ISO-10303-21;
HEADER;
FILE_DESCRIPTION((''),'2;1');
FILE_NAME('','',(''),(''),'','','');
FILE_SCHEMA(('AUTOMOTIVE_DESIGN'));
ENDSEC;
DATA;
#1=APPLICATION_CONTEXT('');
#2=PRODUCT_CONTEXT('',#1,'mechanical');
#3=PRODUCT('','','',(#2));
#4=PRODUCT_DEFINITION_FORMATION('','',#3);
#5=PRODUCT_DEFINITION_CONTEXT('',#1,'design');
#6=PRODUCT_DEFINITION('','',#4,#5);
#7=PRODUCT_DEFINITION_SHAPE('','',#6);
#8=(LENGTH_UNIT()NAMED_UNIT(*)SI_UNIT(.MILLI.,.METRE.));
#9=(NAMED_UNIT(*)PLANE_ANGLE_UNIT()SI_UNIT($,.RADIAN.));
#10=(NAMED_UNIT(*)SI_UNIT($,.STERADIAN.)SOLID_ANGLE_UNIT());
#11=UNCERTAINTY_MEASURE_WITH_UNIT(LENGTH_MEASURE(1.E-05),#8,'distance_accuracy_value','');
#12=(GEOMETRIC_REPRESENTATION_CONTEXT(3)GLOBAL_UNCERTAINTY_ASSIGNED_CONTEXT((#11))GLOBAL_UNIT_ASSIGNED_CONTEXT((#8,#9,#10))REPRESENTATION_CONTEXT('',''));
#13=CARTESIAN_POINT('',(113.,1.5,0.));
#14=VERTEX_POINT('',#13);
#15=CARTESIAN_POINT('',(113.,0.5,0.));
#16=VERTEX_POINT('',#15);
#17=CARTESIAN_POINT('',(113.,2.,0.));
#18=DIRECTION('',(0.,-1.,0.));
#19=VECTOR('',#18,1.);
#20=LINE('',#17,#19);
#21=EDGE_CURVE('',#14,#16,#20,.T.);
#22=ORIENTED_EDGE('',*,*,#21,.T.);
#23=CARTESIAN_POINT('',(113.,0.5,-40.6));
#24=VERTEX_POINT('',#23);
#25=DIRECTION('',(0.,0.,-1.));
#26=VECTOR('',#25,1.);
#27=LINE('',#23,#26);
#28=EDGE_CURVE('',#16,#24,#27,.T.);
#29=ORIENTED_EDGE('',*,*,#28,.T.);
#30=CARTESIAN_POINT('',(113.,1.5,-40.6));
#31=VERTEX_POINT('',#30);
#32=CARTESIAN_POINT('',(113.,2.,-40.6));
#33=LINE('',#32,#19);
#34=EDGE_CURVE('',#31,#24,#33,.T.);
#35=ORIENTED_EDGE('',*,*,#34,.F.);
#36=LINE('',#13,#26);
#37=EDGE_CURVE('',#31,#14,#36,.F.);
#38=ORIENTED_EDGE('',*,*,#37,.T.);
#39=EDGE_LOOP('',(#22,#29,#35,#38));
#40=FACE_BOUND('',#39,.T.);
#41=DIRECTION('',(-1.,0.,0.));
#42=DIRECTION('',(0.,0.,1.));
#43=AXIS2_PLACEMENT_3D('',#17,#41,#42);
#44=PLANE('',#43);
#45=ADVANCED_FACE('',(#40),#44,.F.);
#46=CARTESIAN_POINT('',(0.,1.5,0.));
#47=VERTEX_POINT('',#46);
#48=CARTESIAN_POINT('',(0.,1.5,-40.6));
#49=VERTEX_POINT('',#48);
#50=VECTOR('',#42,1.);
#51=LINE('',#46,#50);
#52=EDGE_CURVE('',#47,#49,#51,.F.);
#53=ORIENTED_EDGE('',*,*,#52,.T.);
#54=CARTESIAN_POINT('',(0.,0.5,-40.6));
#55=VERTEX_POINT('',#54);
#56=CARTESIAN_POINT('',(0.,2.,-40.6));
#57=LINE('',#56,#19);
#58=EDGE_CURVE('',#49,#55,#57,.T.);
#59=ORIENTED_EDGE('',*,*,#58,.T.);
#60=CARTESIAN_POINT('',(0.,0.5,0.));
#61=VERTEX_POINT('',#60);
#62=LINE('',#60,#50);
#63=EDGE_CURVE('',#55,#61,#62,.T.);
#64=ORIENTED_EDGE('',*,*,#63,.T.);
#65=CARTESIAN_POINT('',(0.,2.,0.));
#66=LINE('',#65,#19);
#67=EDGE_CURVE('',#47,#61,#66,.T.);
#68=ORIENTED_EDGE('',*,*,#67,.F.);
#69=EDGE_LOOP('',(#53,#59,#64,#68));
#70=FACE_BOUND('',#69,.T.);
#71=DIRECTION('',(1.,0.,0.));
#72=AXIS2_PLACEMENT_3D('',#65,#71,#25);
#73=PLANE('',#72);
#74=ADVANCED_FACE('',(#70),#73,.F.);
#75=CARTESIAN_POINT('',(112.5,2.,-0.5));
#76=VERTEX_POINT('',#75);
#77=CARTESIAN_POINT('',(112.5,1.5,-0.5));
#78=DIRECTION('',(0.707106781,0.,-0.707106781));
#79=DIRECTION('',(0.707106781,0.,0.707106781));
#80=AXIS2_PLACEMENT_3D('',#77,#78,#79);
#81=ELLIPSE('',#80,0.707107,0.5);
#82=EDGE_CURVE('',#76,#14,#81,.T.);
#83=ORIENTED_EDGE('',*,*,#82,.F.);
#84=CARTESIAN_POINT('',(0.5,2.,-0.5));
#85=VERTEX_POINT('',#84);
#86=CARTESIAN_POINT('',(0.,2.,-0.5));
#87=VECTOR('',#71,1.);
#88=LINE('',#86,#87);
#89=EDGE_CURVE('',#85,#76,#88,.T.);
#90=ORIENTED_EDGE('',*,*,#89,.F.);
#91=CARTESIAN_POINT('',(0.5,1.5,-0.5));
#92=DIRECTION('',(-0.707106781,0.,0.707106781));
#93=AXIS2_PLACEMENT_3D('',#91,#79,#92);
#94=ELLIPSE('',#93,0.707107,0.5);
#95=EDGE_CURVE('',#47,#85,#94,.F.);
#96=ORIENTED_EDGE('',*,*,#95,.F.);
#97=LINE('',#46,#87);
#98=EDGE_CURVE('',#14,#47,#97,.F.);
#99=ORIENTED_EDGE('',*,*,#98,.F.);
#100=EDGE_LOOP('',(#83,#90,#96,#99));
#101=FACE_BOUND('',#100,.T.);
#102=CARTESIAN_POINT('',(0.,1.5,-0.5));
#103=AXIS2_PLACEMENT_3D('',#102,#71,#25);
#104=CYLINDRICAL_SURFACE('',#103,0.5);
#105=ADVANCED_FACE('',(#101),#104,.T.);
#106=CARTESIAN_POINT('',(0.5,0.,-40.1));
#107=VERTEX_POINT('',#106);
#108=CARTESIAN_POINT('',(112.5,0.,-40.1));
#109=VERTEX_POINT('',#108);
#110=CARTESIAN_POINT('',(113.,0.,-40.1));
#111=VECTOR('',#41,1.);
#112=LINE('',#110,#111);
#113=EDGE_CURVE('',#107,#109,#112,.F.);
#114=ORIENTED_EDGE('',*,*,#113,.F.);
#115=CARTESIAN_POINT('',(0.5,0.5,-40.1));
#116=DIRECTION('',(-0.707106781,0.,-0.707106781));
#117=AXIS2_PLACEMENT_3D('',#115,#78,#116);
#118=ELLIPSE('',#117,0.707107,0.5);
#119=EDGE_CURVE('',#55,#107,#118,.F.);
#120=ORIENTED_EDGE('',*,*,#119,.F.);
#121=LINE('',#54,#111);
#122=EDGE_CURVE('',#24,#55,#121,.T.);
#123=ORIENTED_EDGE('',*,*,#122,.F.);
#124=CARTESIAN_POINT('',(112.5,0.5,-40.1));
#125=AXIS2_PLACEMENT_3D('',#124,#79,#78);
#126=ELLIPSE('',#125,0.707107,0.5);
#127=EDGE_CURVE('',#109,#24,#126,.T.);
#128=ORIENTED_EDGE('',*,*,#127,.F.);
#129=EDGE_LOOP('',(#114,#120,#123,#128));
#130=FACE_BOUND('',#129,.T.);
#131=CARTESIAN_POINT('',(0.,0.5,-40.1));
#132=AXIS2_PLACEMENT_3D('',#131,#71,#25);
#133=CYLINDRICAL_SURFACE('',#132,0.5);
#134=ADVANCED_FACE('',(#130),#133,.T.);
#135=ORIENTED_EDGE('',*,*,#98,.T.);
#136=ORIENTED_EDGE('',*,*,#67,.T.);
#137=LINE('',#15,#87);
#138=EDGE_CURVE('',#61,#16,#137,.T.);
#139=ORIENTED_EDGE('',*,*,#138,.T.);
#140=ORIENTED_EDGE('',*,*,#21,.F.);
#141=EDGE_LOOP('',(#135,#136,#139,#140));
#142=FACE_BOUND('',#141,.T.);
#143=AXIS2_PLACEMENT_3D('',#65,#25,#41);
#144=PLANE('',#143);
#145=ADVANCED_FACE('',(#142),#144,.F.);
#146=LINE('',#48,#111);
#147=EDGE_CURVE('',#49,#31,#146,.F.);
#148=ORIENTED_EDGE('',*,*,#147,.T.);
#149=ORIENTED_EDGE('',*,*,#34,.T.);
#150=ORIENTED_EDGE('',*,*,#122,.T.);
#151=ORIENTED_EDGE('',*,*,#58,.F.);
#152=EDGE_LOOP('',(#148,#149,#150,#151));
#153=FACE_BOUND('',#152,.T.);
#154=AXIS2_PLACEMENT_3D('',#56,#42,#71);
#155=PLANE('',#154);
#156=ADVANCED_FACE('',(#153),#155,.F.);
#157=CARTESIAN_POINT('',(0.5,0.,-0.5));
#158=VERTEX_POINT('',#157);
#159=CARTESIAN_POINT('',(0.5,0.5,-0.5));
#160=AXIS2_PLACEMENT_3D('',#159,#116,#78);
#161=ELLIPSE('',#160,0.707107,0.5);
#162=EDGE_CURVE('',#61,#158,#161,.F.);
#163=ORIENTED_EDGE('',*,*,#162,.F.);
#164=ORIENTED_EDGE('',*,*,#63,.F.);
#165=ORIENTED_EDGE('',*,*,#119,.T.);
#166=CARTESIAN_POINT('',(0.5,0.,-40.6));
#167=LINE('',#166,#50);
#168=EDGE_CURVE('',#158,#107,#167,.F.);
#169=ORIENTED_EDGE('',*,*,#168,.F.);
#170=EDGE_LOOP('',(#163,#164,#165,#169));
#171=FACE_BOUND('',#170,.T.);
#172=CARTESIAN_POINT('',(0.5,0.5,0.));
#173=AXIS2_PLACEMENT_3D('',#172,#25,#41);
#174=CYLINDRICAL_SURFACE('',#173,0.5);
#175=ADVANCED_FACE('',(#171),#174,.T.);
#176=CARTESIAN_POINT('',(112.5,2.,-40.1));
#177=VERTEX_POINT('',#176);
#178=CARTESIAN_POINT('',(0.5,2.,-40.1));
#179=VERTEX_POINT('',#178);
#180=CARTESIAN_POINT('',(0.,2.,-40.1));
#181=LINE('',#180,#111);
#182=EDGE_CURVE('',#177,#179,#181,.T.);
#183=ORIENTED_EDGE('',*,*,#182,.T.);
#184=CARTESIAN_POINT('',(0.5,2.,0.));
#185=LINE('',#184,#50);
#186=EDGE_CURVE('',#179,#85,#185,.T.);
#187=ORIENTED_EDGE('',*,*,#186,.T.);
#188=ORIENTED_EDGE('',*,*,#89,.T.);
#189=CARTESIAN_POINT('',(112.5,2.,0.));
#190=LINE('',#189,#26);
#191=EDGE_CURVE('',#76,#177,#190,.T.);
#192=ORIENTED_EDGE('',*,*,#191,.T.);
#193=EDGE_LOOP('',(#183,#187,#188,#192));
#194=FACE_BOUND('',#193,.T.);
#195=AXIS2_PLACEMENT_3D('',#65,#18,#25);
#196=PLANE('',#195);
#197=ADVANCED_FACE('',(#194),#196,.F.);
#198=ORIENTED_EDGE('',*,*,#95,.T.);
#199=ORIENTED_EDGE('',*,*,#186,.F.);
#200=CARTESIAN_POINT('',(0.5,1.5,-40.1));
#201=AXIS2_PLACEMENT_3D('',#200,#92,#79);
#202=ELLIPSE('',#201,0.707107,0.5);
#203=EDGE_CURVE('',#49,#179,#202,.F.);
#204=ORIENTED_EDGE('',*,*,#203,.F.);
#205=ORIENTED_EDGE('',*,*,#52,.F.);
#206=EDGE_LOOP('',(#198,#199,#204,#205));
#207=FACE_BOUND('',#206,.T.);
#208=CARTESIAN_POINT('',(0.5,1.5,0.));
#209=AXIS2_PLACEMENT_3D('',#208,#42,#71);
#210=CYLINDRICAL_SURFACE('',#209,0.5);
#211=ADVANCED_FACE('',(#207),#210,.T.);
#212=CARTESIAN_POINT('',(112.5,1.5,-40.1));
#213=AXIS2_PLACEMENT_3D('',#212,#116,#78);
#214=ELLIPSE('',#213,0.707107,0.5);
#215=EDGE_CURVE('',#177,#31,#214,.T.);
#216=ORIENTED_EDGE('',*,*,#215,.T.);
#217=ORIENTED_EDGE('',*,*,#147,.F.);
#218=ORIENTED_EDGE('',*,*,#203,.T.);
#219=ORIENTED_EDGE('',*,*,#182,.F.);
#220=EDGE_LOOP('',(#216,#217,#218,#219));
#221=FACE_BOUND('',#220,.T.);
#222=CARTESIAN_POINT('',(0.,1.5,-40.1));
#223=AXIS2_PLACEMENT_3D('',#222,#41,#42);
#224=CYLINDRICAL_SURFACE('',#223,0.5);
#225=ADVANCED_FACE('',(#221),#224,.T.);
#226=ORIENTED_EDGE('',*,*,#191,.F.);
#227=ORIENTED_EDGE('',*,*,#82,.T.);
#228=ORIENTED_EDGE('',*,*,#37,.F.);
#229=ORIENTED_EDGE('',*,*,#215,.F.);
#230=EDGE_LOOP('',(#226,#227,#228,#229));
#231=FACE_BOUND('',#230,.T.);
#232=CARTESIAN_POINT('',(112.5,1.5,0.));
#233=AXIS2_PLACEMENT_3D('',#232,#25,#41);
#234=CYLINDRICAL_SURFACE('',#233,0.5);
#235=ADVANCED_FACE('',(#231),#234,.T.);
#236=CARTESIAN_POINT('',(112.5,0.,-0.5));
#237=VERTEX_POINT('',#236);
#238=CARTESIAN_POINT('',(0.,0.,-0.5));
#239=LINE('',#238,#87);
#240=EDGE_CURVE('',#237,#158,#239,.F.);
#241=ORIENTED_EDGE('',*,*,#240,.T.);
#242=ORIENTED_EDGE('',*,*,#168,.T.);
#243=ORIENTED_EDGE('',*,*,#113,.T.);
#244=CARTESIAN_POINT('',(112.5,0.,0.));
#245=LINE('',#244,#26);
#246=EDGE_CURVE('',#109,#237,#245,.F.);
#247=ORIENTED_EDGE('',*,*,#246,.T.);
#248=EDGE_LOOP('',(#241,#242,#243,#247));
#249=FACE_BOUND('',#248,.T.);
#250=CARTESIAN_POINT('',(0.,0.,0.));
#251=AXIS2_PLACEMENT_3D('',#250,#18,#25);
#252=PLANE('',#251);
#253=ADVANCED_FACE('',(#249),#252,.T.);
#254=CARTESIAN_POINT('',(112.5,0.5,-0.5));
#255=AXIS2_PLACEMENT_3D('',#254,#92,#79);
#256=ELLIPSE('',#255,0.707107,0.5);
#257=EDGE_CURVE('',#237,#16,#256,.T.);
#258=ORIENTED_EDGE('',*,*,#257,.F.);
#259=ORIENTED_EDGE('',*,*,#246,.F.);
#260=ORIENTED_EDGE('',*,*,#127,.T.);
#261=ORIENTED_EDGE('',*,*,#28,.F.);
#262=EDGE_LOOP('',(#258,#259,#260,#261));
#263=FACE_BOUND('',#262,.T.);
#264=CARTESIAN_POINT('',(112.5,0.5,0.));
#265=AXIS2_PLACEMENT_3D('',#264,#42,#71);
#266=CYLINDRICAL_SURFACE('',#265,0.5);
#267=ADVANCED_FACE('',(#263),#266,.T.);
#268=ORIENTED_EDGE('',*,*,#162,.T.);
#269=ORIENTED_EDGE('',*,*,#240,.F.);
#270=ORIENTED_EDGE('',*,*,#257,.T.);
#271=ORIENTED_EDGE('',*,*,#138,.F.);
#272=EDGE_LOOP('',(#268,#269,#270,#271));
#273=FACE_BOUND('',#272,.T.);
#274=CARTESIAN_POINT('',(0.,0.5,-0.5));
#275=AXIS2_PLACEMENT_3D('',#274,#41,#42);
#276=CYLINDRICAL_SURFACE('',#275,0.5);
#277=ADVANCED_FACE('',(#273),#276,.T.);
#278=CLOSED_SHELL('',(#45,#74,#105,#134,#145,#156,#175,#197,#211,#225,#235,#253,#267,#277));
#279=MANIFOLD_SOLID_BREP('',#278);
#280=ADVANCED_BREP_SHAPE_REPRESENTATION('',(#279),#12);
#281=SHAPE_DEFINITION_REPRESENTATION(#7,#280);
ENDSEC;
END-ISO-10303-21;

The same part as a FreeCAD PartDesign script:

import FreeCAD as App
import Part
import Sketcher

V = App.Vector
Q = App.Units.Quantity


def edges_at(feature, points):
    """Names of the edges that pass closest to the given points."""
    edges = feature.Shape.Edges
    near = lambda p: min(range(len(edges)), key=lambda i: edges[i].distToShape(Part.Vertex(*p))[0])
    return sorted({f"Edge{near(p) + 1}" for p in points})

doc = App.newDocument("Part")
params = doc.addObject("Spreadsheet::Sheet", "Params")
for row, (alias, value) in enumerate([
    ("sketch1_width", "113 mm"),
    ("sketch1_height", "40.6 mm"),
    ("pad1_length", "2 mm"),
    ("fillet_radius", "0.5 mm"),
], start=1):
    params.set(f"A{row}", alias)
    params.set(f"B{row}", "=" + value)
    params.setAlias(f"B{row}", alias)

body = doc.addObject("PartDesign::Body", "Body")

sketch1 = doc.addObject("Sketcher::SketchObject", "Sketch")
body.addObject(sketch1)
sketch1.AttachmentSupport = (doc.XZ_Plane, [""])
sketch1.MapMode = "FlatFace"
sketch1.addGeometry([
    Part.LineSegment(V(0, -41, 0), V(0, 0, 0)),
    Part.LineSegment(V(0, 0, 0), V(113, 0, 0)),
    Part.LineSegment(V(113, 0, 0), V(113, -41, 0)),
    Part.LineSegment(V(113, -41, 0), V(0, -41, 0)),
], False)
sketch1.addConstraint([
    Sketcher.Constraint("Coincident", 0, 2, 1, 1),
    Sketcher.Constraint("Coincident", 1, 2, 2, 1),
    Sketcher.Constraint("Coincident", 2, 2, 3, 1),
    Sketcher.Constraint("Coincident", 3, 2, 0, 1),
    Sketcher.Constraint("Vertical", 0),
    Sketcher.Constraint("Horizontal", 1),
    Sketcher.Constraint("Vertical", 2),
    Sketcher.Constraint("Horizontal", 3),
    Sketcher.Constraint("Coincident", 0, 2, -1, 1),
    Sketcher.Constraint("DistanceX", 1, 1, 1, 2, Q("113 mm")),
    Sketcher.Constraint("DistanceY", 0, 1, 0, 2, Q("40.6 mm")),
])
sketch1.setExpression("Constraints[9]", "Params.sketch1_width")
sketch1.setExpression("Constraints[10]", "Params.sketch1_height")
pad1 = doc.addObject("PartDesign::Pad", "Pad")
body.addObject(pad1)
pad1.Profile = sketch1
pad1.setExpression("Length", "Params.pad1_length")
pad1.Reversed = True
doc.recompute()

fillet = doc.addObject("PartDesign::Fillet", "Fillet")
body.addObject(fillet)
fillet.Base = (pad1, edges_at(pad1, [
    (113, 2, -20.3),
    (56.5, 2, -40.6),
    (0, 2, -20.3),
    (56.5, 0, -40.6),
    (113, 0, -20.3),
    (56.5, 0, 0),
    (0, 0, -20.3),
    (56.5, 2, 0),
]))
fillet.setExpression("Radius", "Params.fillet_radius")

doc.recompute()
